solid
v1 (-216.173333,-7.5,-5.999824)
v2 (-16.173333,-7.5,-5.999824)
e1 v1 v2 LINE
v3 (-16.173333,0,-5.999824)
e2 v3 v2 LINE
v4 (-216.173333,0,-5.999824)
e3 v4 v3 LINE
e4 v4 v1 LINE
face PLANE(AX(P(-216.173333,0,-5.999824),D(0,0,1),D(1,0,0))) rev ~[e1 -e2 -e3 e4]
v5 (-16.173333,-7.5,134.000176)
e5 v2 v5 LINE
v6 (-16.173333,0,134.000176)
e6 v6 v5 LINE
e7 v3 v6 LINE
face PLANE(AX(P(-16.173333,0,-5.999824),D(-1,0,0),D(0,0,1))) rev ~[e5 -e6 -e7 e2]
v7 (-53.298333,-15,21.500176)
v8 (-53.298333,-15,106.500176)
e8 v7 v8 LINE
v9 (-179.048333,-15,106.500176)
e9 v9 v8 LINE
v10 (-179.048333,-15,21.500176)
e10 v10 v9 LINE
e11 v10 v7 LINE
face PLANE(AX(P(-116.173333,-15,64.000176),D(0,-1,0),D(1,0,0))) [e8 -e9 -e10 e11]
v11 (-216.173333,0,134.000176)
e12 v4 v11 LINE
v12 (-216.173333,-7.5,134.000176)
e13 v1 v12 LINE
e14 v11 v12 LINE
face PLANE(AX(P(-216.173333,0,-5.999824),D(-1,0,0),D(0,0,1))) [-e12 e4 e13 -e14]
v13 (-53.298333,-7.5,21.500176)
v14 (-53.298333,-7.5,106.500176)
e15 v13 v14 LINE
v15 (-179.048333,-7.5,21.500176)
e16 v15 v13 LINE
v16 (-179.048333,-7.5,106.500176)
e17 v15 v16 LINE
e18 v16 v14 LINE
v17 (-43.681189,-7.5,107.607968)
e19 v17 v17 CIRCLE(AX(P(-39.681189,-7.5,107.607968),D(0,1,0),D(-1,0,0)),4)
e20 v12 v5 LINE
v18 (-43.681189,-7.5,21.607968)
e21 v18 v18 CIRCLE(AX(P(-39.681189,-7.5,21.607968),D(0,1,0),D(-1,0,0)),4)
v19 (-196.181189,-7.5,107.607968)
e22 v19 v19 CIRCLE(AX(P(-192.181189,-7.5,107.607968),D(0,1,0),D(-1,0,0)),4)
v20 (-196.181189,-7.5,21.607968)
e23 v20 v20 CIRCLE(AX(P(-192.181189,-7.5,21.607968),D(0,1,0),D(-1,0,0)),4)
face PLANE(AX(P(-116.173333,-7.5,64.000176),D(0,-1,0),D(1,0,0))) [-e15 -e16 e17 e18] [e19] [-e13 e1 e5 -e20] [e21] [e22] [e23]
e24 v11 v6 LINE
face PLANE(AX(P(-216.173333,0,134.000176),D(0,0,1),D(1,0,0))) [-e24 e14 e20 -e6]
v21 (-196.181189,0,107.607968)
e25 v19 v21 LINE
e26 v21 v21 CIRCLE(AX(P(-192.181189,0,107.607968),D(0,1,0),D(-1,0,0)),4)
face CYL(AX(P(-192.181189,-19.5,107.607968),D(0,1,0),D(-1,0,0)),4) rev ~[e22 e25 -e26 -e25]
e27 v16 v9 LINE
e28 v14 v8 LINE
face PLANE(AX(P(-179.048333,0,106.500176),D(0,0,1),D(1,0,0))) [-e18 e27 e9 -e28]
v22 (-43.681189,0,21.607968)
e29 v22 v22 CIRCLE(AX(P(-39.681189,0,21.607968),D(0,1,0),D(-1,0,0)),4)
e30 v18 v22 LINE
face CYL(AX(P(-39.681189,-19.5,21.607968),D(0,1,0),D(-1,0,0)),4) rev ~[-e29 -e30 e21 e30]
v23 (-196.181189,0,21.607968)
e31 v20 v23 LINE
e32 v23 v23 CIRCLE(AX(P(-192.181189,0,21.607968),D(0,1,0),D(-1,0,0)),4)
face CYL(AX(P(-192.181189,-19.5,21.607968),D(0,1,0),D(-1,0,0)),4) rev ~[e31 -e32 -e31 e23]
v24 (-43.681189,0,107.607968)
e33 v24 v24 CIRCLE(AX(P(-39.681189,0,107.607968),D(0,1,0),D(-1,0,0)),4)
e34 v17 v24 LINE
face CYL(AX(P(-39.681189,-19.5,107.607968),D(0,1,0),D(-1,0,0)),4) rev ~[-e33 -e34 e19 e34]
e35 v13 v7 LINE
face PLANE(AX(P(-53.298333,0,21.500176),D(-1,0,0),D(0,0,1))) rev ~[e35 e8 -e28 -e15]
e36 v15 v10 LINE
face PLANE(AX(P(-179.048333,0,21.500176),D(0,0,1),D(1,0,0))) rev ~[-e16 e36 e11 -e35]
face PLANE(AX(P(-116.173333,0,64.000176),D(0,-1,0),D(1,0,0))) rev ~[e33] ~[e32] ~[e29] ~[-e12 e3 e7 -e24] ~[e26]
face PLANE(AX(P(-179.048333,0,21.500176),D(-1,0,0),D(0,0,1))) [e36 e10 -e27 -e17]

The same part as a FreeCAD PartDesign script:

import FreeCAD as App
import Part
import Sketcher
Q = App.Units.Quantity

doc = App.newDocument("Part")
body = doc.addObject("PartDesign::Body", "Body")

sketch1 = body.newObject("Sketcher::SketchObject", "Sketch")
sketch1.AttachmentSupport = (doc.getObject("XZ_Plane"), [""])
sketch1.MapMode = "FlatFace"
sketch1.addGeometry([
    Part.LineSegment(App.Vector(-216, 134, 0), App.Vector(-216, -6, 0)),
    Part.LineSegment(App.Vector(-216, -6, 0), App.Vector(-16, -6, 0)),
    Part.LineSegment(App.Vector(-16, -6, 0), App.Vector(-16, 134, 0)),
    Part.LineSegment(App.Vector(-16, 134, 0), App.Vector(-216, 134, 0)),
    Part.LineSegment(App.Vector(-53, 22, 0), App.Vector(-179, 22, 0)),
    Part.LineSegment(App.Vector(-179, 22, 0), App.Vector(-179, 107, 0)),
    Part.LineSegment(App.Vector(-179, 107, 0), App.Vector(-53, 107, 0)),
    Part.LineSegment(App.Vector(-53, 107, 0), App.Vector(-53, 22, 0)),
], False)
sketch1.addConstraint([
    Sketcher.Constraint("Coincident", 0, 2, 1, 1),
    Sketcher.Constraint("Coincident", 1, 2, 2, 1),
    Sketcher.Constraint("Coincident", 2, 2, 3, 1),
    Sketcher.Constraint("Coincident", 3, 2, 0, 1),
    Sketcher.Constraint("Coincident", 4, 2, 5, 1),
    Sketcher.Constraint("Coincident", 5, 2, 6, 1),
    Sketcher.Constraint("Coincident", 6, 2, 7, 1),
    Sketcher.Constraint("Coincident", 7, 2, 4, 1),
    Sketcher.Constraint("Vertical", 0),
    Sketcher.Constraint("Horizontal", 1),
    Sketcher.Constraint("Vertical", 2),
    Sketcher.Constraint("Horizontal", 3),
    Sketcher.Constraint("Horizontal", 4),
    Sketcher.Constraint("Vertical", 5),
    Sketcher.Constraint("Horizontal", 6),
    Sketcher.Constraint("Vertical", 7),
    Sketcher.Constraint("DistanceX", 1, 1, 1, 2, Q("200 mm")),
    Sketcher.Constraint("DistanceY", 0, 2, 0, 1, Q("140 mm")),
    Sketcher.Constraint("DistanceY", 5, 1, 5, 2, Q("85 mm")),
    Sketcher.Constraint("DistanceX", 4, 2, 4, 1, Q("125.75 mm")),
    Sketcher.Constraint("DistanceY", 0, 2, 4, 2, Q("27.5 mm")),
    Sketcher.Constraint("DistanceX", 0, 2, 4, 2, Q("37.125 mm")),
    Sketcher.Constraint("DistanceX", 0, 2, -1, 1, Q("216.173333 mm")),
    Sketcher.Constraint("DistanceY", 0, 2, -1, 1, Q("5.999824 mm")),
])
pad1 = body.newObject("PartDesign::Pad", "Pad")
pad1.Profile = sketch1
pad1.Length = 7.5

sketch2 = body.newObject("Sketcher::SketchObject", "Sketch001")
sketch2.AttachmentSupport = (doc.getObject("XZ_Plane"), [""])
sketch2.MapMode = "FlatFace"
sketch2.AttachmentOffset = App.Placement(App.Vector(0, 0, 7.5), App.Rotation())
sketch2.addGeometry([
    Part.Circle(App.Vector(-39.7, 21.6, 0), App.Vector(0, 0, 1), 4),
    Part.Circle(App.Vector(-192.2, 21.6, 0), App.Vector(0, 0, 1), 4),
    Part.Circle(App.Vector(-192.2, 107.6, 0), App.Vector(0, 0, 1), 4),
    Part.Circle(App.Vector(-39.7, 107.6, 0), App.Vector(0, 0, 1), 4),
], False)
sketch2.addConstraint([
    Sketcher.Constraint("Equal", 0, 1),
    Sketcher.Constraint("Equal", 1, 2),
    Sketcher.Constraint("Equal", 2, 3),
    Sketcher.Constraint("Horizontal", 0, 3, 1, 3),
    Sketcher.Constraint("Horizontal", 2, 3, 3, 3),
    Sketcher.Constraint("Vertical", 1, 3, 2, 3),
    Sketcher.Constraint("Vertical", 0, 3, 3, 3),
    Sketcher.Constraint("Diameter", 0, Q("8 mm")),
    Sketcher.Constraint("DistanceY", 1, 3, 2, 3, Q("86 mm")),
    Sketcher.Constraint("DistanceX", 1, 3, 0, 3, Q("152.5 mm")),
    Sketcher.Constraint("DistanceX", 0, 3, -1, 1, Q("39.681189 mm")),
    Sketcher.Constraint("DistanceY", -1, 1, 2, 3, Q("107.607968 mm")),
])
doc.recompute()
hole = body.newObject("PartDesign::Hole", "Hole")
hole.Profile = sketch2
hole.ThreadType = "None"
hole.Diameter = 8
hole.DepthType = "Dimension"
hole.Depth = 12
hole.DrillPoint = "Flat"

sketch3 = body.newObject("Sketcher::SketchObject", "Sketch002")
sketch3.AttachmentSupport = (doc.getObject("XZ_Plane"), [""])
sketch3.MapMode = "FlatFace"
sketch3.addGeometry([
    Part.LineSegment(App.Vector(-179, 107, 0), App.Vector(-179, 22, 0)),
    Part.LineSegment(App.Vector(-179, 22, 0), App.Vector(-53, 22, 0)),
    Part.LineSegment(App.Vector(-53, 22, 0), App.Vector(-53, 107, 0)),
    Part.LineSegment(App.Vector(-53, 107, 0), App.Vector(-179, 107, 0)),
], False)
sketch3.addConstraint([
    Sketcher.Constraint("Coincident", 0, 2, 1, 1),
    Sketcher.Constraint("Coincident", 1, 2, 2, 1),
    Sketcher.Constraint("Coincident", 2, 2, 3, 1),
    Sketcher.Constraint("Coincident", 3, 2, 0, 1),
    Sketcher.Constraint("Vertical", 0),
    Sketcher.Constraint("Horizontal", 1),
    Sketcher.Constraint("Vertical", 2),
    Sketcher.Constraint("Horizontal", 3),
    Sketcher.Constraint("DistanceY", 0, 2, 0, 1, Q("85 mm")),
    Sketcher.Constraint("DistanceX", 1, 1, 1, 2, Q("125.75 mm")),
    Sketcher.Constraint("DistanceX", 0, 2, -1, 1, Q("179.048333 mm")),
    Sketcher.Constraint("DistanceY", -1, 1, 0, 2, Q("21.500176 mm")),
])
pad2 = body.newObject("PartDesign::Pad", "Pad001")
pad2.Profile = sketch3
pad2.Length = 15

doc.recompute()
